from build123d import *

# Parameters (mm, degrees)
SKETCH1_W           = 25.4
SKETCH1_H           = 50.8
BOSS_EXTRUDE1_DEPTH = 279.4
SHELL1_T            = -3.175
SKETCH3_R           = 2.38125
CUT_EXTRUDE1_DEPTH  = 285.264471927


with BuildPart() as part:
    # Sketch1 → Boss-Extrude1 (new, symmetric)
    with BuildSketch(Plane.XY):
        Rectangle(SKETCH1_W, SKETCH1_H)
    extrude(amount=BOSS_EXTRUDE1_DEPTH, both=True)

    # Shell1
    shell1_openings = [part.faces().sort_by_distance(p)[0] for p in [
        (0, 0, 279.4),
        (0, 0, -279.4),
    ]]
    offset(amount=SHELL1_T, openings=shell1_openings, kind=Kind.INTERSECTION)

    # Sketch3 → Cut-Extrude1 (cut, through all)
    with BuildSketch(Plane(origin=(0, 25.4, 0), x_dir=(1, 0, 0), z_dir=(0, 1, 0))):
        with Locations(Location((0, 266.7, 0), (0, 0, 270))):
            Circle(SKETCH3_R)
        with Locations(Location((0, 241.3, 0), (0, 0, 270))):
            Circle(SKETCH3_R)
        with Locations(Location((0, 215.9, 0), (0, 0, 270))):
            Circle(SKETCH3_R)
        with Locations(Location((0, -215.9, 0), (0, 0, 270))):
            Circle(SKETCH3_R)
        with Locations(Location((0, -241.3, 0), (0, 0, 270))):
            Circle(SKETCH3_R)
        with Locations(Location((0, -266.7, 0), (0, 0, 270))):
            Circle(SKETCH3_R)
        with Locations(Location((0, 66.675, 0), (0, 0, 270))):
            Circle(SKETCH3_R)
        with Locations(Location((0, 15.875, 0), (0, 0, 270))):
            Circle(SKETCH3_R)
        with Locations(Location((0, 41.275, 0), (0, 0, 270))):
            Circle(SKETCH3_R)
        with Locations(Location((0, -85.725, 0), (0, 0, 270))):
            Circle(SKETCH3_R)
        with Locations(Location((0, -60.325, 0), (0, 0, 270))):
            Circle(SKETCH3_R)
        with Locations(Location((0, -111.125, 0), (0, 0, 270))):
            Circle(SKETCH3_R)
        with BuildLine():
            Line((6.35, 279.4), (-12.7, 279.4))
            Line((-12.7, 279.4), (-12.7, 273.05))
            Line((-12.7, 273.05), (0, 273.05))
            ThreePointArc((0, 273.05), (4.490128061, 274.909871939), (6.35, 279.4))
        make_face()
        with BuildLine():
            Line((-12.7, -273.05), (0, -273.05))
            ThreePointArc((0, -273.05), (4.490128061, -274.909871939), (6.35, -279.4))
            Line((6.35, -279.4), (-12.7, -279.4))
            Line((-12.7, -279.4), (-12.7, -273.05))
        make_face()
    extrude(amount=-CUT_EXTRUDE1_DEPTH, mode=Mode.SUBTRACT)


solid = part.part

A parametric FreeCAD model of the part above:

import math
import FreeCAD as App
import Part
import Sketcher

V = App.Vector
Q = App.Units.Quantity


def faces_at(feature, points):
    """Names of the faces that lie closest to the given points."""
    faces = feature.Shape.Faces
    near = lambda p: min(range(len(faces)), key=lambda i: faces[i].distToShape(Part.Vertex(*p))[0])
    return sorted({f"Face{near(p) + 1}" for p in points})

doc = App.newDocument("Part")
body = doc.addObject("PartDesign::Body", "Body")

# Sketch on XY plane
sketch1 = body.newObject("Sketcher::SketchObject", "Sketch")
sketch1.AttachmentSupport = (doc.getObject("XY_Plane"), [""])
sketch1.MapMode = "FlatFace"
sketch1.addGeometry([
    Part.LineSegment(V(-12.7, 25.4, 0), V(-12.7, -25.4, 0)),
    Part.LineSegment(V(-12.7, -25.4, 0), V(12.7, -25.4, 0)),
    Part.LineSegment(V(12.7, -25.4, 0), V(12.7, 25.4, 0)),
    Part.LineSegment(V(12.7, 25.4, 0), V(-12.7, 25.4, 0)),
], False)
sketch1.addConstraint([
    Sketcher.Constraint("Coincident", 0, 2, 1, 1),
    Sketcher.Constraint("Coincident", 1, 2, 2, 1),
    Sketcher.Constraint("Coincident", 2, 2, 3, 1),
    Sketcher.Constraint("Coincident", 3, 2, 0, 1),
    Sketcher.Constraint("Vertical", 0),
    Sketcher.Constraint("Horizontal", 1),
    Sketcher.Constraint("Vertical", 2),
    Sketcher.Constraint("Horizontal", 3),
    Sketcher.Constraint("Symmetric", 0, 2, 2, 2, -1, 1),
    Sketcher.Constraint("DistanceX", 1, 1, 1, 2, Q("1 in")),
    Sketcher.Constraint("DistanceY", 0, 2, 0, 1, Q("2 in")),
])
pad1 = body.newObject("PartDesign::Pad", "Pad")
pad1.Profile = sketch1
pad1.Length = Q("22 in")
pad1.Midplane = True
doc.recompute()

thickness = body.newObject("PartDesign::Thickness", "Thickness")
thickness.Base = (pad1, faces_at(pad1, [(0, 0, 279.4), (0, 0, -279.4)]))
thickness.Value = Q("0.125 in")
thickness.Reversed = True
thickness.Join = "Intersection"

# Sketch on XZ plane
sketch2 = body.newObject("Sketcher::SketchObject", "Sketch001")
sketch2.AttachmentSupport = (doc.getObject("XZ_Plane"), [""])
sketch2.MapMode = "FlatFace"
sketch2.AttachmentOffset = App.Placement(V(0, 0, -1 * 25.4), App.Rotation())
sketch2.addGeometry([
    Part.Circle(V(0, -266.7, 0), V(0, 0, 1), 2.38125),  # 0
    Part.Circle(V(0, -241.3, 0), V(0, 0, 1), 2.38125),  # 1
    Part.Circle(V(0, -215.9, 0), V(0, 0, 1), 2.38125),  # 2
    Part.Circle(V(0, 215.9, 0), V(0, 0, 1), 2.38125),  # 3
    Part.Circle(V(0, 241.3, 0), V(0, 0, 1), 2.38125),  # 4
    Part.Circle(V(0, 266.7, 0), V(0, 0, 1), 2.38125),  # 5
    Part.Circle(V(0, -66.675, 0), V(0, 0, 1), 2.38125),  # 6
    Part.Circle(V(0, -15.875, 0), V(0, 0, 1), 2.38125),  # 7
    Part.Circle(V(0, -41.275, 0), V(0, 0, 1), 2.38125),  # 8
    Part.Circle(V(0, 85.725, 0), V(0, 0, 1), 2.38125),  # 9
    Part.Circle(V(0, 60.325, 0), V(0, 0, 1), 2.38125),  # 10
    Part.Circle(V(0, 111.125, 0), V(0, 0, 1), 2.38125),  # 11
    Part.LineSegment(V(6.35, -279.4, 0), V(-12.7, -279.4, 0)),  # 12
    Part.LineSegment(V(-12.7, -279.4, 0), V(-12.7, -273.05, 0)),  # 13
    Part.LineSegment(V(-12.7, -273.05, 0), V(0, -273.05, 0)),  # 14
    Part.ArcOfCircle(Part.Circle(V(0, -279.4, 0), V(0, 0, 1), 6.35), math.radians(0), math.radians(90)),  # 15
    Part.LineSegment(V(0, 273.05, 0), V(-12.7, 273.05, 0)),  # 16
    Part.LineSegment(V(-12.7, 273.05, 0), V(-12.7, 279.4, 0)),  # 17
    Part.LineSegment(V(-12.7, 279.4, 0), V(6.35, 279.4, 0)),  # 18
    Part.ArcOfCircle(Part.Circle(V(0, 279.4, 0), V(0, 0, 1), 6.35), math.radians(-90), math.radians(0)),  # 19
], False)
sketch2.addConstraint([
    Sketcher.Constraint("Coincident", 12, 2, 13, 1),
    Sketcher.Constraint("Coincident", 13, 2, 14, 1),
    Sketcher.Constraint("Tangent", 14, 2, 15, 2),
    Sketcher.Constraint("Coincident", 15, 1, 12, 1),
    Sketcher.Constraint("Coincident", 16, 2, 17, 1),
    Sketcher.Constraint("Coincident", 17, 2, 18, 1),
    Sketcher.Constraint("Coincident", 18, 2, 19, 2),
    Sketcher.Constraint("Tangent", 19, 1, 16, 1),
    Sketcher.Constraint("Horizontal", 12),
    Sketcher.Constraint("Vertical", 13),
    Sketcher.Constraint("Horizontal", 14),
    Sketcher.Constraint("Horizontal", 16),
    Sketcher.Constraint("Vertical", 17),
    Sketcher.Constraint("Horizontal", 18),
    Sketcher.Constraint("Equal", 0, 1),
    Sketcher.Constraint("Equal", 1, 2),
    Sketcher.Constraint("Equal", 2, 3),
    Sketcher.Constraint("Equal", 3, 4),
    Sketcher.Constraint("Equal", 4, 5),
    Sketcher.Constraint("Equal", 5, 6),
    Sketcher.Constraint("Equal", 6, 7),
    Sketcher.Constraint("Equal", 7, 8),
    Sketcher.Constraint("Equal", 8, 9),
    Sketcher.Constraint("Equal", 9, 10),
    Sketcher.Constraint("Equal", 10, 11),
    Sketcher.Constraint("Equal", 15, 19),
    Sketcher.Constraint("Symmetric", 2, 3, 3, 3, -1, 1),
    Sketcher.Constraint("Symmetric", 1, 3, 4, 3, -1, 1),
    Sketcher.Constraint("Symmetric", 0, 3, 5, 3, -1, 1),
    Sketcher.Constraint("Symmetric", 15, 3, 19, 3, -1, 1),
    Sketcher.Constraint("Symmetric", 12, 2, 17, 2, -1),
    Sketcher.Constraint("PointOnObject", 0, 3, -2),
    Sketcher.Constraint("PointOnObject", 1, 3, -2),
    Sketcher.Constraint("PointOnObject", 2, 3, -2),
    Sketcher.Constraint("PointOnObject", 6, 3, -2),
    Sketcher.Constraint("PointOnObject", 7, 3, -2),
    Sketcher.Constraint("PointOnObject", 8, 3, -2),
    Sketcher.Constraint("PointOnObject", 9, 3, -2),
    Sketcher.Constraint("PointOnObject", 10, 3, -2),
    Sketcher.Constraint("PointOnObject", 11, 3, -2),
    Sketcher.Constraint("PointOnObject", 15, 3, -2),
    Sketcher.Constraint("Horizontal", 15, 3, 12, 2),
    Sketcher.Constraint("Radius", 15, Q("0.25 in")),
    Sketcher.Constraint("Diameter", 0, Q("0.1875 in")),
    Sketcher.Constraint("DistanceX", 14, 1, 14, 2, Q("0.5 in")),
    Sketcher.Constraint("DistanceY", 15, 3, -1, 1, Q("11 in")),
    Sketcher.Constraint("DistanceY", 0, 3, 1, 3, Q("1 in")),
    Sketcher.Constraint("DistanceY", 1, 3, 2, 3, Q("1 in")),
    Sketcher.Constraint("DistanceY", 2, 3, 3, 3, Q("17 in")),
    Sketcher.Constraint("DistanceY", 6, 3, 7, 3, Q("2 in")),
    Sketcher.Constraint("DistanceY", 6, 3, 8, 3, Q("1 in")),
    Sketcher.Constraint("DistanceY", 7, 3, 9, 3, Q("4 in")),
    Sketcher.Constraint("DistanceY", 10, 3, 9, 3, Q("1 in")),
    Sketcher.Constraint("DistanceY", 9, 3, 11, 3, Q("1 in")),
    Sketcher.Constraint("DistanceY", 6, 3, -1, 1, Q("2.625 in")),
])
pocket1 = body.newObject("PartDesign::Pocket", "Pocket")
pocket1.Profile = sketch2
pocket1.Type = "ThroughAll"
pocket1.Reversed = True

doc.recompute()
